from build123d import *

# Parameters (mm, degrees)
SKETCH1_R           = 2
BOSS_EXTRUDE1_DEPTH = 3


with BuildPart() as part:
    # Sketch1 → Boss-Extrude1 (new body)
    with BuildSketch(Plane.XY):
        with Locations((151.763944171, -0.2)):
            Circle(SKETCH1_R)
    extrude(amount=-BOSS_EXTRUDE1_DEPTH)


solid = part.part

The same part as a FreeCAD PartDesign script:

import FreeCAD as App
import Part
import Sketcher

doc = App.newDocument("Part")
body = doc.addObject("PartDesign::Body", "Body")

# Sketch on XY plane
sketch1 = body.newObject("Sketcher::SketchObject", "Sketch")
sketch1.AttachmentSupport = (doc.getObject("XY_Plane"), [""])
sketch1.MapMode = "FlatFace"
sketch1.addGeometry(Part.Circle(App.Vector(151.8, -0.2, 0), App.Vector(0, 0, 1), 2), False)
sketch1.addConstraint(Sketcher.Constraint("Diameter", 0, 4.0))
sketch1.addConstraint(Sketcher.Constraint("DistanceY", 0, 3, -1, 1, 0.2))
sketch1.addConstraint(Sketcher.Constraint("DistanceX", -1, 1, 0, 3, 151.763944))
pad1 = body.newObject("PartDesign::Pad", "Pad")
pad1.Profile = sketch1
pad1.Length = 3
pad1.Reversed = True

doc.recompute()
